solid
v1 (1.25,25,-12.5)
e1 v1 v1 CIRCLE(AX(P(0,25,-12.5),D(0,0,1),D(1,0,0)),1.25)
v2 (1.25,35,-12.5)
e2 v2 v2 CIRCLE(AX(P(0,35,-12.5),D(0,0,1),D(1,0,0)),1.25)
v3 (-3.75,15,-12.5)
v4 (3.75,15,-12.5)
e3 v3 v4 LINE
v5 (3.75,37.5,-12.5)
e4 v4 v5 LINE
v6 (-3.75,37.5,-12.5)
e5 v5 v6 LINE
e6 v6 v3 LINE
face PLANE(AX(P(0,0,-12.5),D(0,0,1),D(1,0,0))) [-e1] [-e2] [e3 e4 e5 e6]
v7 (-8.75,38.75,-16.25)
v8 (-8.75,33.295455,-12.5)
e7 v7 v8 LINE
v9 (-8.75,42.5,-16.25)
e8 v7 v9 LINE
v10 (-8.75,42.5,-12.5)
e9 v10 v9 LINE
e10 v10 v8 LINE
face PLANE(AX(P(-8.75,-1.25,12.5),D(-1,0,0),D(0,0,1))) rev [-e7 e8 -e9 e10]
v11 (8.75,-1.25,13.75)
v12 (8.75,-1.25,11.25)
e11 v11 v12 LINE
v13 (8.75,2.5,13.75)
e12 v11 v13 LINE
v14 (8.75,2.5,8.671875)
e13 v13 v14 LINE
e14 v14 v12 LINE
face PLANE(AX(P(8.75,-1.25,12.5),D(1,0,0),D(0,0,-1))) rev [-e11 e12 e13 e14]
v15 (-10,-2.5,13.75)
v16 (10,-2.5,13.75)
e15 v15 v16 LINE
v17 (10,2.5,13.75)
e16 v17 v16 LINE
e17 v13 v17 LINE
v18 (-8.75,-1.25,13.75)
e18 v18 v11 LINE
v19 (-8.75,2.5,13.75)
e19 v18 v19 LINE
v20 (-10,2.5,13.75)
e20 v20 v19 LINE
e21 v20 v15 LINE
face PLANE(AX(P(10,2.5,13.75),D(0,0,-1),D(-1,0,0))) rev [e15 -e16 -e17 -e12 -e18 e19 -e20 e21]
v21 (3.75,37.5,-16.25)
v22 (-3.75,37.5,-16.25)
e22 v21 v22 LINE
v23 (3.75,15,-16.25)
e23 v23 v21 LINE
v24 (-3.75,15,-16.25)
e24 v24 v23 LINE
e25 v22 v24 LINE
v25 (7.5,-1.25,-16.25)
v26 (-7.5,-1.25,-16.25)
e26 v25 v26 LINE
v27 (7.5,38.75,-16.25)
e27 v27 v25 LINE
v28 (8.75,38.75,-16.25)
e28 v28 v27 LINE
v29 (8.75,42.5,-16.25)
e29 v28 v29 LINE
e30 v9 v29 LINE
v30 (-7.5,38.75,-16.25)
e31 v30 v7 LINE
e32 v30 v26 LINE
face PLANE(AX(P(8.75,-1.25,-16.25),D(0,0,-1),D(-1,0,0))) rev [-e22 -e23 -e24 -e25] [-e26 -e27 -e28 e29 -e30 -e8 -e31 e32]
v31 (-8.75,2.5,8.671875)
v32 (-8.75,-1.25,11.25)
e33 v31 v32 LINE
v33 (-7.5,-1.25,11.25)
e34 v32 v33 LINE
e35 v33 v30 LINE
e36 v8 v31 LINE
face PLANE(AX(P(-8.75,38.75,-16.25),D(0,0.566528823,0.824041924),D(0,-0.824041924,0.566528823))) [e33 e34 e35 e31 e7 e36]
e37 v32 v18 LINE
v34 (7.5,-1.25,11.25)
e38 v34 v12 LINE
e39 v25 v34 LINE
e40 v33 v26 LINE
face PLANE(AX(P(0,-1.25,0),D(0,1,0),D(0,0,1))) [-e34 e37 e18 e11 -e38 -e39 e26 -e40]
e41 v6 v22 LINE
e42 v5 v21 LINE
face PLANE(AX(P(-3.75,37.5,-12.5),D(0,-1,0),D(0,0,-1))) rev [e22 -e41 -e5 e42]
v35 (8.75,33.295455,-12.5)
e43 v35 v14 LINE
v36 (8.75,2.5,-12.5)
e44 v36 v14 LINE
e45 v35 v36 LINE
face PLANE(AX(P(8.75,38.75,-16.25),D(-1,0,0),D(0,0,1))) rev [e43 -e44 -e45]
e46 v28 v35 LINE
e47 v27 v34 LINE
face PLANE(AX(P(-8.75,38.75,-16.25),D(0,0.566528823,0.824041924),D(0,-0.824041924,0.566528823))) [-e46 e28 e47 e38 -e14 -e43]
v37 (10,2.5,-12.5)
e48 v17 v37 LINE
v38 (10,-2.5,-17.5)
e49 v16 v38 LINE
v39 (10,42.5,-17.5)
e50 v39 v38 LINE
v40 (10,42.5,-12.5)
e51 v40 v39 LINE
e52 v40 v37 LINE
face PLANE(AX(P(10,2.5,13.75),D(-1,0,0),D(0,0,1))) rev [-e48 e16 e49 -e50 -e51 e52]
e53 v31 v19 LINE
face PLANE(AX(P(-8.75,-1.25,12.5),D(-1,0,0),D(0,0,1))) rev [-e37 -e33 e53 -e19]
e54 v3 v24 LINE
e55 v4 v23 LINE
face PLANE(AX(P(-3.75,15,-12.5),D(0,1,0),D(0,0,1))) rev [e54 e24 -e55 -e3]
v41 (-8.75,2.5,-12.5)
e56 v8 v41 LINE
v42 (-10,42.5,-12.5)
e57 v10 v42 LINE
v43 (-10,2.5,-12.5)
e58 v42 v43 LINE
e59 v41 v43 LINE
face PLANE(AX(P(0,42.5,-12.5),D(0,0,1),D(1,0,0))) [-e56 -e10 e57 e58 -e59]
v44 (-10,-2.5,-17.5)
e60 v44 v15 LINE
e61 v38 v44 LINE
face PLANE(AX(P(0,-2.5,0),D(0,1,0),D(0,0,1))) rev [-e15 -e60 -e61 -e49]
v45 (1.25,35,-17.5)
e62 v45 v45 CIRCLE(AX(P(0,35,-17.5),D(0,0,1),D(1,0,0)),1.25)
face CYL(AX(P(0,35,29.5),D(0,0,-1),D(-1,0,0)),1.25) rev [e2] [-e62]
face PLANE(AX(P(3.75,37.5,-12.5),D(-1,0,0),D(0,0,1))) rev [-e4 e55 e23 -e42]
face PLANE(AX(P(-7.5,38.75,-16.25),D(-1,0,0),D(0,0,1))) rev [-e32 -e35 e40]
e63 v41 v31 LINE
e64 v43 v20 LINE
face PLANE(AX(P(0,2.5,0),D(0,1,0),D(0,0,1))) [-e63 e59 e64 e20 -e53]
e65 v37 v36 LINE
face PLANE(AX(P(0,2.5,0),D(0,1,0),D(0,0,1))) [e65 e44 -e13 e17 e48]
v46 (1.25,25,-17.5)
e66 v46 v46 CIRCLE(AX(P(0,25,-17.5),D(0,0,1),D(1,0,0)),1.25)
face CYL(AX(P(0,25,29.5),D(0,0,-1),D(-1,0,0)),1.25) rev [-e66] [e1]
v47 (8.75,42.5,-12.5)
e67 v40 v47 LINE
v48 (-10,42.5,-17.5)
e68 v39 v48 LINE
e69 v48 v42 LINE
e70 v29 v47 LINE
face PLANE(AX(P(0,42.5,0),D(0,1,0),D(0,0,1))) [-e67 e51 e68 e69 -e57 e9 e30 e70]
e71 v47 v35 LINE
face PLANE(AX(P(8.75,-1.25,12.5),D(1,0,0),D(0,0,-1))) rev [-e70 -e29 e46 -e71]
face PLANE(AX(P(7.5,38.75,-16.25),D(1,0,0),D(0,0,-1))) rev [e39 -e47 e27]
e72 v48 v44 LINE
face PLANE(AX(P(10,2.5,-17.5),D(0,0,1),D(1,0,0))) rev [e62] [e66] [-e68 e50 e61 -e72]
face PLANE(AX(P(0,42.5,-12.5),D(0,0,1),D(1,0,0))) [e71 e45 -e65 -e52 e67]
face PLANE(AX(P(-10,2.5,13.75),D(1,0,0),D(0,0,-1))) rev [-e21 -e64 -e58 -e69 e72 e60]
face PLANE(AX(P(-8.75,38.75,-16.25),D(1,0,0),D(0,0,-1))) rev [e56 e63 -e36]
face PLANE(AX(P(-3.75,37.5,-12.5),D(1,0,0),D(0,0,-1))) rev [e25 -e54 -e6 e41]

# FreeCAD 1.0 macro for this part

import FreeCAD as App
import Part
import Sketcher


def add_polygon(sketch, points):
    """Adds a closed chain of lines whose ends are joined by coincident constraints."""
    first, n = sketch.GeometryCount, len(points)
    for a, b in zip(points, points[1:] + points[:1]):
        sketch.addGeometry(Part.LineSegment(App.Vector(*a, 0), App.Vector(*b, 0)), False)
    for i in range(n):
        sketch.addConstraint(Sketcher.Constraint("Coincident", first + i, 2, first + (i + 1) % n, 1))

doc = App.newDocument("Part")
params = doc.addObject("Spreadsheet::Sheet", "Params")
for row, (alias, value) in enumerate([
    ("sketch1_width", "20 mm"),
    ("sketch1_height", "31.25 mm"),
    ("pad1_length", "5 mm"),
    ("sketch2_height", "30 mm"),
    ("sketch2_width", "17.5 mm"),
    ("pocket1_length", "3.75 mm"),
    ("sketch3_width", "20 mm"),
    ("sketch3_height", "5 mm"),
    ("sketch3_width2", "17.5 mm"),
    ("sketch3_height2", "3.75 mm"),
    ("pad2_length", "40 mm"),
    ("sketch4_height", "27.5 mm"),
    ("sketch4_width", "1.25 mm"),
    ("pad3_length", "40 mm"),
    ("sketch5_width", "40 mm"),
    ("sketch5_height", "27.5 mm"),
    ("pocket2_length", "16.25 mm"),
    ("pocket2_length2", "1.25 mm"),
    ("sketch6_diameter", "2.5 mm"),
    ("sketch7_width", "7.5 mm"),
    ("sketch7_height", "22.5 mm"),
    ("pad4_length", "3.75 mm"),
    ("sketch8_diameter", "2.5 mm"),
    ("pocket4_length", "13.75 mm"),
], start=1):
    params.set(f"A{row}", alias)
    params.set(f"B{row}", "=" + value)
    params.setAlias(f"B{row}", alias)

body = doc.addObject("PartDesign::Body", "Body")

# Sketch on XZ plane
sketch1 = body.newObject("Sketcher::SketchObject", "Sketch")
sketch1.AttachmentSupport = (doc.getObject("XZ_Plane"), [""])
sketch1.MapMode = "FlatFace"
add_polygon(sketch1, [(-10, -18), (-10, 14), (10, 14), (10, -18)])  # lines 0-3
sketch1.addConstraint(Sketcher.Constraint("Vertical", 0))
sketch1.addConstraint(Sketcher.Constraint("Horizontal", 1))
sketch1.addConstraint(Sketcher.Constraint("Vertical", 2))
sketch1.addConstraint(Sketcher.Constraint("Horizontal", 3))
sketch1.addConstraint(Sketcher.Constraint("DistanceX", 1, 1, 1, 2, 20.0))
sketch1.addConstraint(Sketcher.Constraint("DistanceX", 0, 2, -1, 1, 10.0))
sketch1.addConstraint(Sketcher.Constraint("DistanceY", 0, 1, 0, 2, 31.25))
sketch1.addConstraint(Sketcher.Constraint("DistanceY", 2, 2, -1, 1, 17.5))
sketch1.setExpression("Constraints[8]", "Params.sketch1_width")
sketch1.setExpression("Constraints[10]", "Params.sketch1_height")
pad1 = body.newObject("PartDesign::Pad", "Pad")
pad1.Profile = sketch1
pad1.setExpression("Length", "Params.pad1_length")
pad1.Midplane = True

# Sketch on XZ plane
sketch2 = body.newObject("Sketcher::SketchObject", "Sketch001")
sketch2.AttachmentSupport = (doc.getObject("XZ_Plane"), [""])
sketch2.MapMode = "FlatFace"
sketch2.AttachmentOffset = App.Placement(App.Vector(0, 0, -2.5), App.Rotation())
add_polygon(sketch2, [(-9, 14), (9, 14), (9, -16), (-9, -16)])  # lines 0-3
sketch2.addConstraint(Sketcher.Constraint("Horizontal", 0))
sketch2.addConstraint(Sketcher.Constraint("Vertical", 1))
sketch2.addConstraint(Sketcher.Constraint("Horizontal", 2))
sketch2.addConstraint(Sketcher.Constraint("Vertical", 3))
sketch2.addConstraint(Sketcher.Constraint("DistanceY", 1, 2, 1, 1, 30.0))
sketch2.addConstraint(Sketcher.Constraint("DistanceX", 0, 1, 0, 2, 17.5))
sketch2.addConstraint(Sketcher.Constraint("DistanceX", -1, 1, 0, 2, 8.75))
sketch2.addConstraint(Sketcher.Constraint("DistanceY", -1, 1, 0, 2, 13.75))
sketch2.setExpression("Constraints[8]", "Params.sketch2_height")
sketch2.setExpression("Constraints[9]", "Params.sketch2_width")
pocket1 = body.newObject("PartDesign::Pocket", "Pocket")
pocket1.Profile = sketch2
pocket1.setExpression("Length", "Params.pocket1_length")
pocket1.Reversed = True

# Sketch on XZ plane
sketch3 = body.newObject("Sketcher::SketchObject", "Sketch002")
sketch3.AttachmentSupport = (doc.getObject("XZ_Plane"), [""])
sketch3.MapMode = "FlatFace"
sketch3.AttachmentOffset = App.Placement(App.Vector(0, 0, -2.5), App.Rotation())
add_polygon(sketch3, [(-8.8, -16.2), (8.8, -16.2), (8.8, -12.5), (10, -12.5), (10, -17.5), (-10, -17.5), (-10, -12.5), (-8.8, -12.5)])  # lines 0-7
sketch3.addConstraint(Sketcher.Constraint("Horizontal", 0))
sketch3.addConstraint(Sketcher.Constraint("Vertical", 1))
sketch3.addConstraint(Sketcher.Constraint("Horizontal", 2))
sketch3.addConstraint(Sketcher.Constraint("Vertical", 3))
sketch3.addConstraint(Sketcher.Constraint("Horizontal", 4))
sketch3.addConstraint(Sketcher.Constraint("Vertical", 5))
sketch3.addConstraint(Sketcher.Constraint("Horizontal", 6))
sketch3.addConstraint(Sketcher.Constraint("Vertical", 7))
sketch3.addConstraint(Sketcher.Constraint("Symmetric", 2, 2, 5, 2, -2))
sketch3.addConstraint(Sketcher.Constraint("Equal", 2, 6))
sketch3.addConstraint(Sketcher.Constraint("DistanceX", 4, 2, 4, 1, 20.0))
sketch3.addConstraint(Sketcher.Constraint("DistanceY", 3, 2, 3, 1, 5.0))
sketch3.addConstraint(Sketcher.Constraint("DistanceX", 0, 1, 0, 2, 17.5))
sketch3.addConstraint(Sketcher.Constraint("DistanceY", 1, 1, 1, 2, 3.75))
sketch3.addConstraint(Sketcher.Constraint("DistanceY", 1, 2, -1, 1, 12.5))
sketch3.setExpression("Constraints[18]", "Params.sketch3_width")
sketch3.setExpression("Constraints[19]", "Params.sketch3_height")
sketch3.setExpression("Constraints[20]", "Params.sketch3_width2")
sketch3.setExpression("Constraints[21]", "Params.sketch3_height2")
pad2 = body.newObject("PartDesign::Pad", "Pad001")
pad2.Profile = sketch3
pad2.setExpression("Length", "Params.pad2_length")
pad2.Reversed = True

# Sketch on XZ plane
sketch4 = body.newObject("Sketcher::SketchObject", "Sketch003")
sketch4.AttachmentSupport = (doc.getObject("XZ_Plane"), [""])
sketch4.MapMode = "FlatFace"
sketch4.AttachmentOffset = App.Placement(App.Vector(0, 0, 1.25), App.Rotation())
add_polygon(sketch4, [(7.5, -16.2), (7.5, 11.2), (8.8, 11.2), (8.8, -16.2)])  # lines 0-3
add_polygon(sketch4, [(-8.8, -16.2), (-8.8, 11.2), (-7.5, 11.2), (-7.5, -16.2)])  # lines 4-7
sketch4.addConstraint(Sketcher.Constraint("Vertical", 0))
sketch4.addConstraint(Sketcher.Constraint("Horizontal", 1))
sketch4.addConstraint(Sketcher.Constraint("Vertical", 2))
sketch4.addConstraint(Sketcher.Constraint("Horizontal", 3))
sketch4.addConstraint(Sketcher.Constraint("Vertical", 4))
sketch4.addConstraint(Sketcher.Constraint("Horizontal", 5))
sketch4.addConstraint(Sketcher.Constraint("Vertical", 6))
sketch4.addConstraint(Sketcher.Constraint("Horizontal", 7))
sketch4.addConstraint(Sketcher.Constraint("Symmetric", 1, 2, 4, 2, -2))
sketch4.addConstraint(Sketcher.Constraint("Symmetric", 3, 2, 6, 2, -2))
sketch4.addConstraint(Sketcher.Constraint("DistanceY", 0, 1, 0, 2, 27.5))
sketch4.addConstraint(Sketcher.Constraint("DistanceX", 5, 2, 0, 2, 15.0))
sketch4.addConstraint(Sketcher.Constraint("DistanceX", 1, 1, 1, 2, 1.25))
sketch4.addConstraint(Sketcher.Constraint("DistanceY", -1, 1, 0, 2, 11.25))
sketch4.setExpression("Constraints[18]", "Params.sketch4_height")
sketch4.setExpression("Constraints[20]", "Params.sketch4_width")
pad3 = body.newObject("PartDesign::Pad", "Pad002")
pad3.Profile = sketch4
pad3.setExpression("Length", "Params.pad3_length")
pad3.Reversed = True

# Sketch on YZ plane
sketch5 = body.newObject("Sketcher::SketchObject", "Sketch004")
sketch5.AttachmentSupport = (doc.getObject("YZ_Plane"), [""])
sketch5.MapMode = "FlatFace"
sketch5.AttachmentOffset = App.Placement(App.Vector(0, 0, 7.5), App.Rotation())
add_polygon(sketch5, [(39, 11), (39, -16), (-1, 11)])  # lines 0-2
sketch5.addConstraint(Sketcher.Constraint("Vertical", 0))
sketch5.addConstraint(Sketcher.Constraint("Horizontal", 2))
sketch5.addConstraint(Sketcher.Constraint("DistanceX", 2, 1, 2, 2, 40.0))
sketch5.addConstraint(Sketcher.Constraint("DistanceY", 0, 2, 0, 1, 27.5))
sketch5.addConstraint(Sketcher.Constraint("DistanceX", -1, 1, 0, 2, 38.75))
sketch5.addConstraint(Sketcher.Constraint("DistanceY", 0, 2, -1, 1, 16.25))
sketch5.setExpression("Constraints[5]", "Params.sketch5_width")
sketch5.setExpression("Constraints[6]", "Params.sketch5_height")
pocket2 = body.newObject("PartDesign::Pocket", "Pocket001")
pocket2.Profile = sketch5
pocket2.Type = "TwoLengths"
pocket2.setExpression("Length", "Params.pocket2_length")
pocket2.setExpression("Length2", "Params.pocket2_length2")

# Sketch on XY plane
sketch6 = body.newObject("Sketcher::SketchObject", "Sketch005")
sketch6.AttachmentSupport = (doc.getObject("XY_Plane"), [""])
sketch6.MapMode = "FlatFace"
sketch6.AttachmentOffset = App.Placement(App.Vector(0, 0, -16.25), App.Rotation())
sketch6.addGeometry(Part.Circle(App.Vector(0, 35, 0), App.Vector(0, 0, 1), 1.2), False)
sketch6.addGeometry(Part.Circle(App.Vector(0, 25, 0), App.Vector(0, 0, 1), 1.2), False)
sketch6.addConstraint(Sketcher.Constraint("Equal", 0, 1))
sketch6.addConstraint(Sketcher.Constraint("PointOnObject", 0, 3, -2))
sketch6.addConstraint(Sketcher.Constraint("PointOnObject", 1, 3, -2))
sketch6.addConstraint(Sketcher.Constraint("Diameter", 0, 2.5))
sketch6.addConstraint(Sketcher.Constraint("DistanceY", -1, 1, 0, 3, 35.0))
sketch6.addConstraint(Sketcher.Constraint("DistanceY", -1, 1, 1, 3, 25.0))
sketch6.setExpression("Constraints[3]", "Params.sketch6_diameter")
pocket3 = body.newObject("PartDesign::Pocket", "Pocket002")
pocket3.Profile = sketch6
pocket3.Type = "ThroughAll"
pocket3.Midplane = True

# Sketch on XY plane
sketch7 = body.newObject("Sketcher::SketchObject", "Sketch006")
sketch7.AttachmentSupport = (doc.getObject("XY_Plane"), [""])
sketch7.MapMode = "FlatFace"
sketch7.AttachmentOffset = App.Placement(App.Vector(0, 0, -16.25), App.Rotation())
add_polygon(sketch7, [(-4, 38), (-4, 15), (4, 15), (4, 38)])  # lines 0-3
sketch7.addConstraint(Sketcher.Constraint("Vertical", 0))
sketch7.addConstraint(Sketcher.Constraint("Horizontal", 1))
sketch7.addConstraint(Sketcher.Constraint("Vertical", 2))
sketch7.addConstraint(Sketcher.Constraint("Horizontal", 3))
sketch7.addConstraint(Sketcher.Constraint("DistanceX", 1, 1, 1, 2, 7.5))
sketch7.addConstraint(Sketcher.Constraint("DistanceY", 0, 2, 0, 1, 22.5))
sketch7.addConstraint(Sketcher.Constraint("DistanceY", -1, 1, 0, 2, 15.0))
sketch7.addConstraint(Sketcher.Constraint("DistanceX", 0, 2, -1, 1, 3.75))
sketch7.setExpression("Constraints[8]", "Params.sketch7_width")
sketch7.setExpression("Constraints[9]", "Params.sketch7_height")
pad4 = body.newObject("PartDesign::Pad", "Pad003")
pad4.Profile = sketch7
pad4.setExpression("Length", "Params.pad4_length")

# Sketch on XY plane
sketch8 = body.newObject("Sketcher::SketchObject", "Sketch007")
sketch8.AttachmentSupport = (doc.getObject("XY_Plane"), [""])
sketch8.MapMode = "FlatFace"
sketch8.AttachmentOffset = App.Placement(App.Vector(0, 0, -17.5), App.Rotation())
sketch8.addGeometry(Part.Circle(App.Vector(0, 35, 0), App.Vector(0, 0, 1), 1.2), False)
sketch8.addGeometry(Part.Circle(App.Vector(0, 25, 0), App.Vector(0, 0, 1), 1.2), False)
sketch8.addConstraint(Sketcher.Constraint("Equal", 0, 1))
sketch8.addConstraint(Sketcher.Constraint("PointOnObject", 0, 3, -2))
sketch8.addConstraint(Sketcher.Constraint("PointOnObject", 1, 3, -2))
sketch8.addConstraint(Sketcher.Constraint("Diameter", 0, 2.5))
sketch8.addConstraint(Sketcher.Constraint("DistanceY", -1, 1, 0, 3, 35.0))
sketch8.addConstraint(Sketcher.Constraint("DistanceY", -1, 1, 1, 3, 25.0))
sketch8.setExpression("Constraints[3]", "Params.sketch8_diameter")
pocket4 = body.newObject("PartDesign::Pocket", "Pocket003")
pocket4.Profile = sketch8
pocket4.setExpression("Length", "Params.pocket4_length")
pocket4.Reversed = True

doc.recompute()
